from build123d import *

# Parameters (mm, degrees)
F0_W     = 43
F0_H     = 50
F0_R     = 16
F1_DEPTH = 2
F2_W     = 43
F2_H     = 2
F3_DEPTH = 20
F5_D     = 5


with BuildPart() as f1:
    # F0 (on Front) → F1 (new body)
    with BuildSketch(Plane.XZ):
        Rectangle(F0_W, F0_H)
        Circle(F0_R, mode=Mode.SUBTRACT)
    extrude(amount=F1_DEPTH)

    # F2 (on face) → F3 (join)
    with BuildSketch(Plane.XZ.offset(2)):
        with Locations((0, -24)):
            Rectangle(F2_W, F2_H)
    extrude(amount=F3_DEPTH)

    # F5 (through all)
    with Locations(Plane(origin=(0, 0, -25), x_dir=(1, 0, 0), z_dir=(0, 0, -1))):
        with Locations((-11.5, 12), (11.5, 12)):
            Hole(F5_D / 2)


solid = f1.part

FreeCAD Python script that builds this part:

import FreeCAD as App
import Part
import Sketcher
Q = App.Units.Quantity


def add_polygon(sketch, points):
    """Adds a closed chain of lines whose ends are joined by coincident constraints."""
    first, n = sketch.GeometryCount, len(points)
    for a, b in zip(points, points[1:] + points[:1]):
        sketch.addGeometry(Part.LineSegment(App.Vector(*a, 0), App.Vector(*b, 0)), False)
    for i in range(n):
        sketch.addConstraint(Sketcher.Constraint("Coincident", first + i, 2, first + (i + 1) % n, 1))

doc = App.newDocument("Part")
body = doc.addObject("PartDesign::Body", "Body")

# Sketch on XZ plane
sketch1 = doc.addObject("Sketcher::SketchObject", "Sketch")
body.addObject(sketch1)
sketch1.AttachmentSupport = (doc.XZ_Plane, [""])
sketch1.MapMode = "FlatFace"
add_polygon(sketch1, [(-22, 25), (-22, -25), (22, -25), (22, 25)])  # lines 0-3
sketch1.addGeometry(Part.Circle(App.Vector(0, 0, 0), App.Vector(0, 0, 1), 16), False)  # 4
sketch1.addConstraint([
    Sketcher.Constraint("Vertical", 0),
    Sketcher.Constraint("Horizontal", 1),
    Sketcher.Constraint("Vertical", 2),
    Sketcher.Constraint("Horizontal", 3),
    Sketcher.Constraint("Coincident", 4, 3, -1, 1),
    Sketcher.Constraint("Symmetric", 0, 2, 2, 2, -1, 1),
    Sketcher.Constraint("Diameter", 4, Q("32 mm")),
    Sketcher.Constraint("DistanceX", 1, 1, 1, 2, Q("43 mm")),
    Sketcher.Constraint("DistanceY", 0, 2, 0, 1, Q("50 mm")),
])
pad1 = doc.addObject("PartDesign::Pad", "Pad")
body.addObject(pad1)
pad1.Profile = sketch1
pad1.Length = 2

# Sketch on XZ plane
sketch2 = doc.addObject("Sketcher::SketchObject", "Sketch001")
body.addObject(sketch2)
sketch2.AttachmentSupport = (doc.XZ_Plane, [""])
sketch2.MapMode = "FlatFace"
sketch2.AttachmentOffset = App.Placement(App.Vector(0, 0, 2), App.Rotation())
add_polygon(sketch2, [(-21.5, -23), (-21.5, -25), (21.5, -25), (21.5, -23)])  # lines 0-3
sketch2.addConstraint([
    Sketcher.Constraint("Vertical", 0),
    Sketcher.Constraint("Horizontal", 1),
    Sketcher.Constraint("Vertical", 2),
    Sketcher.Constraint("Horizontal", 3),
    Sketcher.Constraint("DistanceX", 1, 1, 1, 2, Q("43 mm")),
    Sketcher.Constraint("DistanceY", 0, 2, 0, 1, Q("2 mm")),
    Sketcher.Constraint("DistanceY", 0, 2, -1, 1, Q("25 mm")),
    Sketcher.Constraint("DistanceX", 0, 2, -1, 1, Q("21.5 mm")),
])
pad2 = doc.addObject("PartDesign::Pad", "Pad001")
body.addObject(pad2)
pad2.Profile = sketch2
pad2.Length = 20

# Sketch on XY plane
sketch3 = doc.addObject("Sketcher::SketchObject", "Sketch002")
body.addObject(sketch3)
sketch3.AttachmentSupport = (doc.XY_Plane, [""])
sketch3.MapMode = "FlatFace"
sketch3.AttachmentOffset = App.Placement(App.Vector(0, 0, -25), App.Rotation())
sketch3.addGeometry([
    Part.Circle(App.Vector(-11.5, -12, 0), App.Vector(0, 0, 1), 2.5),
    Part.Circle(App.Vector(11.5, -12, 0), App.Vector(0, 0, 1), 2.5),
], False)
sketch3.addConstraint([
    Sketcher.Constraint("Equal", 0, 1),
    Sketcher.Constraint("Symmetric", 0, 3, 1, 3, -2),
    Sketcher.Constraint("Diameter", 0, Q("5 mm")),
    Sketcher.Constraint("DistanceY", 0, 3, -1, 1, Q("12 mm")),
    Sketcher.Constraint("DistanceX", 0, 3, 1, 3, Q("23 mm")),
])
doc.recompute()
hole = doc.addObject("PartDesign::Hole", "Hole")
body.addObject(hole)
hole.Profile = sketch3
hole.ThreadType = "None"
hole.Diameter = 5
hole.DepthType = "ThroughAll"
hole.Reversed = True

doc.recompute()
